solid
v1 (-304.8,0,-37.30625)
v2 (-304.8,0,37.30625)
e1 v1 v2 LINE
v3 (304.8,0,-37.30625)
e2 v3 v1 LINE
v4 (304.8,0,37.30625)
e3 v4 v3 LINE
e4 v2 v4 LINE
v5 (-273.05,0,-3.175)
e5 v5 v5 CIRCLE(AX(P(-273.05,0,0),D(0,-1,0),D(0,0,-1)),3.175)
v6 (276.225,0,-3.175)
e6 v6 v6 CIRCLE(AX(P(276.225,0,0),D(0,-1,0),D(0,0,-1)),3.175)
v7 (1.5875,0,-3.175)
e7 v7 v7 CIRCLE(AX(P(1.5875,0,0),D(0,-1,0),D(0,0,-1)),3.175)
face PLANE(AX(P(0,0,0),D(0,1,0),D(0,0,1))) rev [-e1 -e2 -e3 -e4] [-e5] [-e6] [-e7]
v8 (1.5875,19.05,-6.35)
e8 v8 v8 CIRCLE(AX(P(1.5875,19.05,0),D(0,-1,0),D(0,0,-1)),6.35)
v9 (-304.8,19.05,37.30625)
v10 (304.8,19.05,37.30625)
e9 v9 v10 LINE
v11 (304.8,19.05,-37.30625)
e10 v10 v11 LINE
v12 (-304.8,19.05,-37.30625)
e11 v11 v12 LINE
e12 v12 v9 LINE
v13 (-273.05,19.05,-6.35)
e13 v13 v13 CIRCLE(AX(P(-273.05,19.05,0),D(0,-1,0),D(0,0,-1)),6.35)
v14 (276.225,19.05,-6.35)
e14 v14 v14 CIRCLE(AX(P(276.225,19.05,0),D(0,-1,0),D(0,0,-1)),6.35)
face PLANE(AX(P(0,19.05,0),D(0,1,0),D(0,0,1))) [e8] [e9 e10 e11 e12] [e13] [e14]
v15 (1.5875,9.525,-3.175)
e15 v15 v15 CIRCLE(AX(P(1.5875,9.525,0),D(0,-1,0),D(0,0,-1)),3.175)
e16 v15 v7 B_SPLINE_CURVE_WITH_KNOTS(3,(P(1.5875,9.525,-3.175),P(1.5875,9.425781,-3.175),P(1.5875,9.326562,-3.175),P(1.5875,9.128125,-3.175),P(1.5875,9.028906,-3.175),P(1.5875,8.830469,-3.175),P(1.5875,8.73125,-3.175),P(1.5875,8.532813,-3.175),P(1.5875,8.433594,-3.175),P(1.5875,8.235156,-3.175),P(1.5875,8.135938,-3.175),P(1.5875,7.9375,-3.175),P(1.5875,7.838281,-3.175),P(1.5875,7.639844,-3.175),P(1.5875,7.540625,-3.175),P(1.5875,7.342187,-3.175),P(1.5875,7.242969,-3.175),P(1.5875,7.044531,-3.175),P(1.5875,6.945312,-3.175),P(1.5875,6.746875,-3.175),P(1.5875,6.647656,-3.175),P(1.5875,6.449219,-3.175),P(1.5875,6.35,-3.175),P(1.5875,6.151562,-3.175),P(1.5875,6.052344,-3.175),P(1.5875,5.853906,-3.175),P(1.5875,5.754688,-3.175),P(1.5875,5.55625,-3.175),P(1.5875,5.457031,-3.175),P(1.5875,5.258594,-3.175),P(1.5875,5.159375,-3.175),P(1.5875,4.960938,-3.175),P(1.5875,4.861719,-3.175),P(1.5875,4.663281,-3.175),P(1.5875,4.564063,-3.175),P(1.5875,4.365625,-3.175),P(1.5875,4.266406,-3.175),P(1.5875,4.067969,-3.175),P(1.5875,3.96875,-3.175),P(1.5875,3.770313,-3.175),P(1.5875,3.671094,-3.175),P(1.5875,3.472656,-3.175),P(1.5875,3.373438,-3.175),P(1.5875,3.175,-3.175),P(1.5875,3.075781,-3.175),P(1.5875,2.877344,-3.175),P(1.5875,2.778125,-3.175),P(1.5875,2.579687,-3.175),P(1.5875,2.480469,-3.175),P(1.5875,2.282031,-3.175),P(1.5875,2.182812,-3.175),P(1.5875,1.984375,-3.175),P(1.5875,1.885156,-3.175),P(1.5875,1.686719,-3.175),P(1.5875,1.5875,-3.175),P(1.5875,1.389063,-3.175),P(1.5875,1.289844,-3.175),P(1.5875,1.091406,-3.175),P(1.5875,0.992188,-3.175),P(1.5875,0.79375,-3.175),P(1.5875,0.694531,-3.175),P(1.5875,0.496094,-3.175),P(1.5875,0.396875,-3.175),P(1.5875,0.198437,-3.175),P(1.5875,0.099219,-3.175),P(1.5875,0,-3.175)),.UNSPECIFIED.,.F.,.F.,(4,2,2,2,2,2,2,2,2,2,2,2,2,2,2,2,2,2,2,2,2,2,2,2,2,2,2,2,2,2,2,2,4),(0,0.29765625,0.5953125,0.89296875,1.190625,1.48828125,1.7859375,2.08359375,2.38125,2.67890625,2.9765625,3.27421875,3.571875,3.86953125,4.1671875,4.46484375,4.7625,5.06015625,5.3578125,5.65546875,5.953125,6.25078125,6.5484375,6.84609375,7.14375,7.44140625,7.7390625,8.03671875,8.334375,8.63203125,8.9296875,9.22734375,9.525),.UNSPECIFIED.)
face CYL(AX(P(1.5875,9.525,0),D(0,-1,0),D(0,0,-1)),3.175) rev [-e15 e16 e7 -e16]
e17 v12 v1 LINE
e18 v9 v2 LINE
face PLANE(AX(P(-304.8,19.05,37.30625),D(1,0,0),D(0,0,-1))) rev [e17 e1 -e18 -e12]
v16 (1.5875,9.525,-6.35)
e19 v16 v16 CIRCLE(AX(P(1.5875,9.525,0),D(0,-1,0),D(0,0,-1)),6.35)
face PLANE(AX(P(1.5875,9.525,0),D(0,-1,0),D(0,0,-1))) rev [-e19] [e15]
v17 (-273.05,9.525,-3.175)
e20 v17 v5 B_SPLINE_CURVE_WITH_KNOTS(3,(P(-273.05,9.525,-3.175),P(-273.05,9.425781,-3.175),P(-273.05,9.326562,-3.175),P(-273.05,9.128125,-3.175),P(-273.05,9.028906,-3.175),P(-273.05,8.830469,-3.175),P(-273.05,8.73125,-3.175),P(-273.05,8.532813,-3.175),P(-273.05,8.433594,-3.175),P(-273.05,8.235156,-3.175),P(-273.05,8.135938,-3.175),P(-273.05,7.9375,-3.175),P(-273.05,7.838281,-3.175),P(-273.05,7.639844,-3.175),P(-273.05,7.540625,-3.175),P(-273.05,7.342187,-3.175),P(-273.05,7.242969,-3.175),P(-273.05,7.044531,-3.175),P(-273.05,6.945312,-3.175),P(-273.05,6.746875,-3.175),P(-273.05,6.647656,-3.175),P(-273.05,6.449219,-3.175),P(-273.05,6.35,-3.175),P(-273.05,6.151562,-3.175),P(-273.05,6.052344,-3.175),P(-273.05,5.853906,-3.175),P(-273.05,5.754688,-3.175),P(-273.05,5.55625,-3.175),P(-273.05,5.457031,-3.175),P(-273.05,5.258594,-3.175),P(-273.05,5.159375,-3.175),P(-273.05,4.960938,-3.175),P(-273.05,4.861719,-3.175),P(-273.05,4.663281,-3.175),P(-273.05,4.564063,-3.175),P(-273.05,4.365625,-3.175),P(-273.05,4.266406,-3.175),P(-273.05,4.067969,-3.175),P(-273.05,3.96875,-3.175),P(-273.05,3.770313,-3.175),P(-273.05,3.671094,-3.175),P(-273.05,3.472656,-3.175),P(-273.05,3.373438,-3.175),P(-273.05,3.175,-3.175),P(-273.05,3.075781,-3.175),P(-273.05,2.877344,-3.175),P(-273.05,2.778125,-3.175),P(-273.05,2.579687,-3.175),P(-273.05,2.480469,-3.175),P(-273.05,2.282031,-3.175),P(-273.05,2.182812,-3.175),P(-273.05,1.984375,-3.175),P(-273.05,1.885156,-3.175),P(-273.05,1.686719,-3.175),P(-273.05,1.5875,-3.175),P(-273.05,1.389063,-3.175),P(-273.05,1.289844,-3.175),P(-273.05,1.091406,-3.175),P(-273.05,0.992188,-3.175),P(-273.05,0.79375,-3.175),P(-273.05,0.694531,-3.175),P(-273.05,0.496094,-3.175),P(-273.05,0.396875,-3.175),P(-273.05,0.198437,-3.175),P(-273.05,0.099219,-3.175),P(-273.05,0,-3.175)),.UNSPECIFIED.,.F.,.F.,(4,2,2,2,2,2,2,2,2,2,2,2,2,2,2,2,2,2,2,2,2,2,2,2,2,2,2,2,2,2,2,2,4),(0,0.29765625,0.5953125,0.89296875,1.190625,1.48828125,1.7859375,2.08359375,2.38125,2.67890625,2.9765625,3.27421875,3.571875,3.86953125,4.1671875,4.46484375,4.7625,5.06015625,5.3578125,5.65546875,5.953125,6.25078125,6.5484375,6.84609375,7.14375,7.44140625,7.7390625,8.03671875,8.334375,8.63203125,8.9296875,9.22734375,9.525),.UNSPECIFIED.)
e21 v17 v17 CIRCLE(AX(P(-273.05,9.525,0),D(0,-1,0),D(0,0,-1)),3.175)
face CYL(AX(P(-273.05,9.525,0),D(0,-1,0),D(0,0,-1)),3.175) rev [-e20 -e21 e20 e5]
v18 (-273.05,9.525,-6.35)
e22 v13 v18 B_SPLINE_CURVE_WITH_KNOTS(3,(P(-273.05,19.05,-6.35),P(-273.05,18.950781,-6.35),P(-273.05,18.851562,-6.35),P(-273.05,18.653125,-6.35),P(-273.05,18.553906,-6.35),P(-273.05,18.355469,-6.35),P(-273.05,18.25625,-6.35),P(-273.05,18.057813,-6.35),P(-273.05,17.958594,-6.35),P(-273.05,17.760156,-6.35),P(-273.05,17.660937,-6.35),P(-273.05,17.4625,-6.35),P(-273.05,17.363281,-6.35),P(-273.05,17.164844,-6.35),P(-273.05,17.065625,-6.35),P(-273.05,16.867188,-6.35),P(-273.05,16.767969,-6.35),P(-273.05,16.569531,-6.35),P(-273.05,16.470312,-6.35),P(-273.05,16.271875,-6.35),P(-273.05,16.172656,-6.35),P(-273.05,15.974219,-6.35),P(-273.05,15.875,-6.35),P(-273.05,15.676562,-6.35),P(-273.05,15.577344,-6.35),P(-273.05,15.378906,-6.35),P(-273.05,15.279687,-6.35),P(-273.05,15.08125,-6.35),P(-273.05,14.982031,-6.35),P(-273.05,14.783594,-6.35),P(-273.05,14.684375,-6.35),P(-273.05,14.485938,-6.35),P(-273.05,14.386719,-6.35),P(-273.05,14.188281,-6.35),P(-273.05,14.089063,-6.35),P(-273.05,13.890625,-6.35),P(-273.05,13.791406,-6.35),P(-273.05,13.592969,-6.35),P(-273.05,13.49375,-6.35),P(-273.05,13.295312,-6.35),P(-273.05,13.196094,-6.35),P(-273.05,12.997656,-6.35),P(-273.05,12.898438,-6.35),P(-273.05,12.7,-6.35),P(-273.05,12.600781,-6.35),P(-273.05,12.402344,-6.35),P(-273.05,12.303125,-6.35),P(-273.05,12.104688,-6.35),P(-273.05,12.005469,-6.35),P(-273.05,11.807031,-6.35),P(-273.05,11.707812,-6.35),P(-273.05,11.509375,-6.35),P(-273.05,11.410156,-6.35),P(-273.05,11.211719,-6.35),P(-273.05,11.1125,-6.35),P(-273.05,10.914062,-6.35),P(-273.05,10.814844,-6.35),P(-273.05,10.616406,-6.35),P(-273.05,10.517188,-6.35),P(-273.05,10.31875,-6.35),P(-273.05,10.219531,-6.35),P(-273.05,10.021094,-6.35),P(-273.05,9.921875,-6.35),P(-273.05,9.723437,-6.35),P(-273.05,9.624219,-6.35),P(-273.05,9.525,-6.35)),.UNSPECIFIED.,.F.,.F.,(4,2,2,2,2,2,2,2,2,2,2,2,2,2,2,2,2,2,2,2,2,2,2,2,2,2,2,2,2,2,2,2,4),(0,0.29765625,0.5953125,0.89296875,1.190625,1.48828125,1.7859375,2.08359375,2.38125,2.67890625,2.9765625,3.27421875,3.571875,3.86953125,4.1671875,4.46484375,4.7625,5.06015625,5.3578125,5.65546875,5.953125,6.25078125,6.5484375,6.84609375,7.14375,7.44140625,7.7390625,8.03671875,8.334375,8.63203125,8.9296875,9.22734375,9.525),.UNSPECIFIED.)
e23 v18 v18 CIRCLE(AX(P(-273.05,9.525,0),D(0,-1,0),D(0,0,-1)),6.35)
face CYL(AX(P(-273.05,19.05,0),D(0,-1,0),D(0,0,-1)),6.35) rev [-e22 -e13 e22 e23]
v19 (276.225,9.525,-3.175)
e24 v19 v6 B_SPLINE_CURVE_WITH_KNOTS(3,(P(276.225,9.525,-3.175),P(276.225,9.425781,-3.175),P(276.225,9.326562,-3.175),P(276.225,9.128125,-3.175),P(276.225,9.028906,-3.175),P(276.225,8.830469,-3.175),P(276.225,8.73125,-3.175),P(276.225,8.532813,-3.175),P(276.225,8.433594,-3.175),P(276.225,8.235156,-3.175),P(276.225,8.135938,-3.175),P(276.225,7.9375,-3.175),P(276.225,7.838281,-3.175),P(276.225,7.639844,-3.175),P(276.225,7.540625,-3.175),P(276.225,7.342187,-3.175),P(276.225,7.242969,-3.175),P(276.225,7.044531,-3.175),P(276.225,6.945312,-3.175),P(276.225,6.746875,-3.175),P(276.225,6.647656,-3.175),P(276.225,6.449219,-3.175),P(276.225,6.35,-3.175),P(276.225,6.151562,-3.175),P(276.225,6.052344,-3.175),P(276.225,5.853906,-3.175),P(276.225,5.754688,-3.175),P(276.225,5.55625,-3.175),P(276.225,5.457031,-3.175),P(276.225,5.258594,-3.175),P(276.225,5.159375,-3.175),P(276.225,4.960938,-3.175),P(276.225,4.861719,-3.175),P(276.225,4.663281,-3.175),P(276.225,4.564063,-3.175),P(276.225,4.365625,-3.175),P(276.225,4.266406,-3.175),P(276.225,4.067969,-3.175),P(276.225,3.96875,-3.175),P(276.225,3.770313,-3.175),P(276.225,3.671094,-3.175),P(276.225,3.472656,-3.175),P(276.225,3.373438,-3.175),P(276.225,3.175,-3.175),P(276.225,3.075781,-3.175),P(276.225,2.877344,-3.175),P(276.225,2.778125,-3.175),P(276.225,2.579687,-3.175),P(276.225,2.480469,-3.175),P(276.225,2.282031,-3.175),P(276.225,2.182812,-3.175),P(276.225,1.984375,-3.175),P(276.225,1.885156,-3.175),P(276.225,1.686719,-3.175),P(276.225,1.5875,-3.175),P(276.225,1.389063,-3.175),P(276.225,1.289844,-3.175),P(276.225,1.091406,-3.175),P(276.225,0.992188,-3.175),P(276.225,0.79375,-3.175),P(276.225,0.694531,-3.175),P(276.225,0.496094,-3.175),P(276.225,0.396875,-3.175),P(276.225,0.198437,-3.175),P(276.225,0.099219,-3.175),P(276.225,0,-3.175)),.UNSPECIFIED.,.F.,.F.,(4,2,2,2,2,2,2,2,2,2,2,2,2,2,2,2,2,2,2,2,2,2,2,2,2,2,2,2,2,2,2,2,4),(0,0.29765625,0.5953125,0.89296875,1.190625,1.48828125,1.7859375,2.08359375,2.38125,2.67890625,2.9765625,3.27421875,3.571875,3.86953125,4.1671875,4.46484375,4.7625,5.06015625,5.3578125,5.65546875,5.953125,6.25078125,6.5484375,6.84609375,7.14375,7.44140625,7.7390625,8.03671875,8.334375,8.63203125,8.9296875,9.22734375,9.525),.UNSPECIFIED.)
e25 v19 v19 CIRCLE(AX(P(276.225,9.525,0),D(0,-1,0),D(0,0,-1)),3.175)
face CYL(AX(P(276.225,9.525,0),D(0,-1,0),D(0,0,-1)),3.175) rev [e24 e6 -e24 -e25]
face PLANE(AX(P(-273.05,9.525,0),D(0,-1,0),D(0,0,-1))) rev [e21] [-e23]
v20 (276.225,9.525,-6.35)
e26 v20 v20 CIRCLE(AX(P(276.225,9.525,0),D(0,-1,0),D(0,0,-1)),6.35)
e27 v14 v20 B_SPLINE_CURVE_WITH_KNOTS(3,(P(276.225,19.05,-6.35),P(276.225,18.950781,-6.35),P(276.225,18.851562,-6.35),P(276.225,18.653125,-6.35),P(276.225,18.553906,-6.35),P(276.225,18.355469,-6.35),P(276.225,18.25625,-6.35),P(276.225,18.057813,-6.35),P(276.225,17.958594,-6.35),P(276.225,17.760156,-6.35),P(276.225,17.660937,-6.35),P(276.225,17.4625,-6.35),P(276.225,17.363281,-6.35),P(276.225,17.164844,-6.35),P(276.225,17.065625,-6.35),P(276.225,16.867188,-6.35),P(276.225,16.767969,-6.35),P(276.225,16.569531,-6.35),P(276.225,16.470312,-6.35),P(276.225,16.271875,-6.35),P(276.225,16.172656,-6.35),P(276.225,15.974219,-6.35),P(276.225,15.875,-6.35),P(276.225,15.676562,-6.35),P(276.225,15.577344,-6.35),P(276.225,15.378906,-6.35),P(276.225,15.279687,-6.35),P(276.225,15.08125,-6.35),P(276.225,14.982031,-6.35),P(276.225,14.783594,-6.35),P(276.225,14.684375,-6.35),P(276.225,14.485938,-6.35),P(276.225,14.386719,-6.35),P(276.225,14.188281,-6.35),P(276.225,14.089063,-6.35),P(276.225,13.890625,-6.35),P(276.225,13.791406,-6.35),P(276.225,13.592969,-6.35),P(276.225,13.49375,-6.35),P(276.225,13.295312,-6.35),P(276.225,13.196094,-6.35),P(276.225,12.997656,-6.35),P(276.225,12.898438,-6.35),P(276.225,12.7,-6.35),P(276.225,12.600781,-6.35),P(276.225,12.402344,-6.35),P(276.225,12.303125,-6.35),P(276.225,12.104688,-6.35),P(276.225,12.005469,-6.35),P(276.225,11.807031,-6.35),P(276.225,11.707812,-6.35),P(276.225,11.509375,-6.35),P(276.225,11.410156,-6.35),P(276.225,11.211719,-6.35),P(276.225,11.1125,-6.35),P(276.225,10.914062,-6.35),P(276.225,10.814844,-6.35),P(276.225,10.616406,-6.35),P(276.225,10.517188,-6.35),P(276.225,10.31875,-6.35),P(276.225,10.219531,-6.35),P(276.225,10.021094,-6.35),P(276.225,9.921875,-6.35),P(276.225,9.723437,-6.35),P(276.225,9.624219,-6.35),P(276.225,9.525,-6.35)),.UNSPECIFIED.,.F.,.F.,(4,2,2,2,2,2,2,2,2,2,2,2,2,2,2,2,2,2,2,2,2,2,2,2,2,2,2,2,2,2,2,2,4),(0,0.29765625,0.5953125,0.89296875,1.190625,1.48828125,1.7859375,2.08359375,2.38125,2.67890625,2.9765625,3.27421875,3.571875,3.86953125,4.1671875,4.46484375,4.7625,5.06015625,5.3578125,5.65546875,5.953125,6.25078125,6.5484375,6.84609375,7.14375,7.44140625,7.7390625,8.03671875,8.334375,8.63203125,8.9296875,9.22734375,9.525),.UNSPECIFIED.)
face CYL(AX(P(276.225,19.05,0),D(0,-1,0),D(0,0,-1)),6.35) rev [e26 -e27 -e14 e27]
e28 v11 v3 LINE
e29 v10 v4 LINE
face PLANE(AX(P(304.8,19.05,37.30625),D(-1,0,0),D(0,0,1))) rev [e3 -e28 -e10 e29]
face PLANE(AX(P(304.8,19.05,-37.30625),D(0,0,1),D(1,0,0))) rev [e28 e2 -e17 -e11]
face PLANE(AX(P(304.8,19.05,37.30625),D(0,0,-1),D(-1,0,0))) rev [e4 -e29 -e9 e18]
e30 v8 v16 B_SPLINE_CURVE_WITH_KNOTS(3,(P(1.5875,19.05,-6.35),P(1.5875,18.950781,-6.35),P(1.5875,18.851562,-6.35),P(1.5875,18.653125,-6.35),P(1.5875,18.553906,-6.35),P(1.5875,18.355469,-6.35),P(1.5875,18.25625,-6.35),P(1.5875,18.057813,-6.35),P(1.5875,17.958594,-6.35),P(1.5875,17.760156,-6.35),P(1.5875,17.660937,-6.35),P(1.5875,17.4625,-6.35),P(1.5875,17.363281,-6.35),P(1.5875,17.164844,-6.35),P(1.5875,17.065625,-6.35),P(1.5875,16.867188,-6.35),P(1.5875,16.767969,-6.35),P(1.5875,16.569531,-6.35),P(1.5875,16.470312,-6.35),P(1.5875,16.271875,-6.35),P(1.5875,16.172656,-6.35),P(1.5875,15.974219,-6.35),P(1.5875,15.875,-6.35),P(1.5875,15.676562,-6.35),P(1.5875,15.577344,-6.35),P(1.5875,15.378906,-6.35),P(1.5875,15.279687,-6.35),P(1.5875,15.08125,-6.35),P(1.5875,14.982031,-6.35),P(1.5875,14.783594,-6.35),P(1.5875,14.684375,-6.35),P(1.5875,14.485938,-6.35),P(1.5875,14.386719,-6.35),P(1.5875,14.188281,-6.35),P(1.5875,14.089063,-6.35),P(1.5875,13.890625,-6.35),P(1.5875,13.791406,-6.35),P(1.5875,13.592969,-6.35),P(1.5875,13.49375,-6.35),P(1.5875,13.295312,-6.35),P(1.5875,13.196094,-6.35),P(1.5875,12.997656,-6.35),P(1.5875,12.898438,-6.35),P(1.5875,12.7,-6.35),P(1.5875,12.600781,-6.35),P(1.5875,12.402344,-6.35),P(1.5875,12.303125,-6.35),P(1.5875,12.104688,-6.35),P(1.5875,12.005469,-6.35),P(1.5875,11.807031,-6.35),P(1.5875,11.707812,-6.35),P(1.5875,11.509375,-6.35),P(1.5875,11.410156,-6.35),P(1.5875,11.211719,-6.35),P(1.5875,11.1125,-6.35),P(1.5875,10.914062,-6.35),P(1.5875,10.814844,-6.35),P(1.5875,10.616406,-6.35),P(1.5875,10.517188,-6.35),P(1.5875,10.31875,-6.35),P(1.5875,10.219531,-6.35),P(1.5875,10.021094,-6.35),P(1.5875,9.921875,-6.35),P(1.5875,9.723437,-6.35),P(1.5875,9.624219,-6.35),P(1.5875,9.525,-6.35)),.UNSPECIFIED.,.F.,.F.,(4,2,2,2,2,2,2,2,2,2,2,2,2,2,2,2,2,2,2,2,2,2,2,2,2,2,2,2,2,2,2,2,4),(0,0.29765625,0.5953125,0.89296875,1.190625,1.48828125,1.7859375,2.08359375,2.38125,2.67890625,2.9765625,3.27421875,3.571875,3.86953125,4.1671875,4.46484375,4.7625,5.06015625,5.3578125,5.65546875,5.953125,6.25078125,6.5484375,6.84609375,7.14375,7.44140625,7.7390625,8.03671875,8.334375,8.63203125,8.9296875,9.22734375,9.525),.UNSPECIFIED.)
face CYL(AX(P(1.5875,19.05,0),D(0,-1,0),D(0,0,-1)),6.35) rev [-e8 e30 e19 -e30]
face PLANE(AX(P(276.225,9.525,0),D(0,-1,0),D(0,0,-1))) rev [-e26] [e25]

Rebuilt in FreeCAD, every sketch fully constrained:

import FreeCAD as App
import Part
import Sketcher
Q = App.Units.Quantity


def add_polygon(sketch, points):
    """Adds a closed chain of lines whose ends are joined by coincident constraints."""
    first, n = sketch.GeometryCount, len(points)
    for a, b in zip(points, points[1:] + points[:1]):
        sketch.addGeometry(Part.LineSegment(App.Vector(*a, 0), App.Vector(*b, 0)), False)
    for i in range(n):
        sketch.addConstraint(Sketcher.Constraint("Coincident", first + i, 2, first + (i + 1) % n, 1))

doc = App.newDocument("Part")
body = doc.addObject("PartDesign::Body", "Body")

# Sketch on XZ plane
sketch1 = body.newObject("Sketcher::SketchObject", "Sketch")
sketch1.AttachmentSupport = (doc.getObject("XZ_Plane"), [""])
sketch1.MapMode = "FlatFace"
add_polygon(sketch1, [(-305, -37), (-305, 37), (305, 37), (305, -37)])  # lines 0-3
sketch1.addConstraint([
    Sketcher.Constraint("Vertical", 0),
    Sketcher.Constraint("Horizontal", 1),
    Sketcher.Constraint("Vertical", 2),
    Sketcher.Constraint("Horizontal", 3),
    Sketcher.Constraint("Symmetric", 0, 2, 2, 2, -1, 1),
    Sketcher.Constraint("DistanceX", 1, 1, 1, 2, Q("24 in")),
    Sketcher.Constraint("DistanceY", 0, 1, 0, 2, Q("2.9375 in")),
])
pad1 = body.newObject("PartDesign::Pad", "Pad")
pad1.Profile = sketch1
pad1.Length = Q("0.75 in")
pad1.Reversed = True

# Sketch on XZ plane
sketch2 = body.newObject("Sketcher::SketchObject", "Sketch001")
sketch2.AttachmentSupport = (doc.getObject("XZ_Plane"), [""])
sketch2.MapMode = "FlatFace"
sketch2.addGeometry(Part.Circle(App.Vector(1.6, 0, 0), App.Vector(0, 0, 1), 3.2), False)
sketch2.addConstraint([
    Sketcher.Constraint("PointOnObject", 0, 3, -1),
    Sketcher.Constraint("Diameter", 0, Q("0.25 in")),
    Sketcher.Constraint("DistanceX", -1, 1, 0, 3, Q("0.0625 in")),
])
pocket1 = body.newObject("PartDesign::Pocket", "Pocket")
pocket1.Profile = sketch2
pocket1.Length = Q("0.375 in")

# Sketch on XZ plane
sketch3 = body.newObject("Sketcher::SketchObject", "Sketch002")
sketch3.AttachmentSupport = (doc.getObject("XZ_Plane"), [""])
sketch3.MapMode = "FlatFace"
sketch3.AttachmentOffset = App.Placement(App.Vector(0, 0, -0.375 * 25.4), App.Rotation())
sketch3.addGeometry(Part.Circle(App.Vector(2, 0, 0), App.Vector(0, 0, 1), 6), False)
sketch3.addConstraint([
    Sketcher.Constraint("PointOnObject", 0, 3, -1),
    Sketcher.Constraint("Diameter", 0, Q("0.5 in")),
    Sketcher.Constraint("DistanceX", -1, 1, 0, 3, Q("0.0625 in")),
])
pocket2 = body.newObject("PartDesign::Pocket", "Pocket001")
pocket2.Profile = sketch3
pocket2.Length = Q("0.375 in")

# Sketch on XZ plane
sketch4 = body.newObject("Sketcher::SketchObject", "Sketch003")
sketch4.AttachmentSupport = (doc.getObject("XZ_Plane"), [""])
sketch4.MapMode = "FlatFace"
sketch4.addGeometry(Part.Circle(App.Vector(276.2, 0, 0), App.Vector(0, 0, 1), 3.2), False)
sketch4.addConstraint([
    Sketcher.Constraint("PointOnObject", 0, 3, -1),
    Sketcher.Constraint("Diameter", 0, Q("0.25 in")),
    Sketcher.Constraint("DistanceX", -1, 1, 0, 3, Q("10.875 in")),
])
pocket3 = body.newObject("PartDesign::Pocket", "Pocket002")
pocket3.Profile = sketch4
pocket3.Length = Q("0.375 in")

# Sketch on XZ plane
sketch5 = body.newObject("Sketcher::SketchObject", "Sketch004")
sketch5.AttachmentSupport = (doc.getObject("XZ_Plane"), [""])
sketch5.MapMode = "FlatFace"
sketch5.AttachmentOffset = App.Placement(App.Vector(0, 0, -0.375 * 25.4), App.Rotation())
sketch5.addGeometry(Part.Circle(App.Vector(276, 0, 0), App.Vector(0, 0, 1), 6), False)
sketch5.addConstraint([
    Sketcher.Constraint("PointOnObject", 0, 3, -1),
    Sketcher.Constraint("Diameter", 0, Q("0.5 in")),
    Sketcher.Constraint("DistanceX", -1, 1, 0, 3, Q("10.875 in")),
])
pocket4 = body.newObject("PartDesign::Pocket", "Pocket003")
pocket4.Profile = sketch5
pocket4.Length = Q("0.375 in")

# Sketch on XZ plane
sketch6 = body.newObject("Sketcher::SketchObject", "Sketch005")
sketch6.AttachmentSupport = (doc.getObject("XZ_Plane"), [""])
sketch6.MapMode = "FlatFace"
sketch6.addGeometry(Part.Circle(App.Vector(-273.1, 0, 0), App.Vector(0, 0, 1), 3.2), False)
sketch6.addConstraint([
    Sketcher.Constraint("PointOnObject", 0, 3, -1),
    Sketcher.Constraint("Diameter", 0, Q("0.25 in")),
    Sketcher.Constraint("DistanceX", 0, 3, -1, 1, Q("10.75 in")),
])
pocket5 = body.newObject("PartDesign::Pocket", "Pocket004")
pocket5.Profile = sketch6
pocket5.Length = Q("0.375 in")

# Sketch on XZ plane
sketch7 = body.newObject("Sketcher::SketchObject", "Sketch006")
sketch7.AttachmentSupport = (doc.getObject("XZ_Plane"), [""])
sketch7.MapMode = "FlatFace"
sketch7.AttachmentOffset = App.Placement(App.Vector(0, 0, -0.375 * 25.4), App.Rotation())
sketch7.addGeometry(Part.Circle(App.Vector(-273, 0, 0), App.Vector(0, 0, 1), 6), False)
sketch7.addConstraint([
    Sketcher.Constraint("PointOnObject", 0, 3, -1),
    Sketcher.Constraint("Diameter", 0, Q("0.5 in")),
    Sketcher.Constraint("DistanceX", 0, 3, -1, 1, Q("10.75 in")),
])
pocket6 = body.newObject("PartDesign::Pocket", "Pocket005")
pocket6.Profile = sketch7
pocket6.Length = Q("0.375 in")

doc.recompute()
